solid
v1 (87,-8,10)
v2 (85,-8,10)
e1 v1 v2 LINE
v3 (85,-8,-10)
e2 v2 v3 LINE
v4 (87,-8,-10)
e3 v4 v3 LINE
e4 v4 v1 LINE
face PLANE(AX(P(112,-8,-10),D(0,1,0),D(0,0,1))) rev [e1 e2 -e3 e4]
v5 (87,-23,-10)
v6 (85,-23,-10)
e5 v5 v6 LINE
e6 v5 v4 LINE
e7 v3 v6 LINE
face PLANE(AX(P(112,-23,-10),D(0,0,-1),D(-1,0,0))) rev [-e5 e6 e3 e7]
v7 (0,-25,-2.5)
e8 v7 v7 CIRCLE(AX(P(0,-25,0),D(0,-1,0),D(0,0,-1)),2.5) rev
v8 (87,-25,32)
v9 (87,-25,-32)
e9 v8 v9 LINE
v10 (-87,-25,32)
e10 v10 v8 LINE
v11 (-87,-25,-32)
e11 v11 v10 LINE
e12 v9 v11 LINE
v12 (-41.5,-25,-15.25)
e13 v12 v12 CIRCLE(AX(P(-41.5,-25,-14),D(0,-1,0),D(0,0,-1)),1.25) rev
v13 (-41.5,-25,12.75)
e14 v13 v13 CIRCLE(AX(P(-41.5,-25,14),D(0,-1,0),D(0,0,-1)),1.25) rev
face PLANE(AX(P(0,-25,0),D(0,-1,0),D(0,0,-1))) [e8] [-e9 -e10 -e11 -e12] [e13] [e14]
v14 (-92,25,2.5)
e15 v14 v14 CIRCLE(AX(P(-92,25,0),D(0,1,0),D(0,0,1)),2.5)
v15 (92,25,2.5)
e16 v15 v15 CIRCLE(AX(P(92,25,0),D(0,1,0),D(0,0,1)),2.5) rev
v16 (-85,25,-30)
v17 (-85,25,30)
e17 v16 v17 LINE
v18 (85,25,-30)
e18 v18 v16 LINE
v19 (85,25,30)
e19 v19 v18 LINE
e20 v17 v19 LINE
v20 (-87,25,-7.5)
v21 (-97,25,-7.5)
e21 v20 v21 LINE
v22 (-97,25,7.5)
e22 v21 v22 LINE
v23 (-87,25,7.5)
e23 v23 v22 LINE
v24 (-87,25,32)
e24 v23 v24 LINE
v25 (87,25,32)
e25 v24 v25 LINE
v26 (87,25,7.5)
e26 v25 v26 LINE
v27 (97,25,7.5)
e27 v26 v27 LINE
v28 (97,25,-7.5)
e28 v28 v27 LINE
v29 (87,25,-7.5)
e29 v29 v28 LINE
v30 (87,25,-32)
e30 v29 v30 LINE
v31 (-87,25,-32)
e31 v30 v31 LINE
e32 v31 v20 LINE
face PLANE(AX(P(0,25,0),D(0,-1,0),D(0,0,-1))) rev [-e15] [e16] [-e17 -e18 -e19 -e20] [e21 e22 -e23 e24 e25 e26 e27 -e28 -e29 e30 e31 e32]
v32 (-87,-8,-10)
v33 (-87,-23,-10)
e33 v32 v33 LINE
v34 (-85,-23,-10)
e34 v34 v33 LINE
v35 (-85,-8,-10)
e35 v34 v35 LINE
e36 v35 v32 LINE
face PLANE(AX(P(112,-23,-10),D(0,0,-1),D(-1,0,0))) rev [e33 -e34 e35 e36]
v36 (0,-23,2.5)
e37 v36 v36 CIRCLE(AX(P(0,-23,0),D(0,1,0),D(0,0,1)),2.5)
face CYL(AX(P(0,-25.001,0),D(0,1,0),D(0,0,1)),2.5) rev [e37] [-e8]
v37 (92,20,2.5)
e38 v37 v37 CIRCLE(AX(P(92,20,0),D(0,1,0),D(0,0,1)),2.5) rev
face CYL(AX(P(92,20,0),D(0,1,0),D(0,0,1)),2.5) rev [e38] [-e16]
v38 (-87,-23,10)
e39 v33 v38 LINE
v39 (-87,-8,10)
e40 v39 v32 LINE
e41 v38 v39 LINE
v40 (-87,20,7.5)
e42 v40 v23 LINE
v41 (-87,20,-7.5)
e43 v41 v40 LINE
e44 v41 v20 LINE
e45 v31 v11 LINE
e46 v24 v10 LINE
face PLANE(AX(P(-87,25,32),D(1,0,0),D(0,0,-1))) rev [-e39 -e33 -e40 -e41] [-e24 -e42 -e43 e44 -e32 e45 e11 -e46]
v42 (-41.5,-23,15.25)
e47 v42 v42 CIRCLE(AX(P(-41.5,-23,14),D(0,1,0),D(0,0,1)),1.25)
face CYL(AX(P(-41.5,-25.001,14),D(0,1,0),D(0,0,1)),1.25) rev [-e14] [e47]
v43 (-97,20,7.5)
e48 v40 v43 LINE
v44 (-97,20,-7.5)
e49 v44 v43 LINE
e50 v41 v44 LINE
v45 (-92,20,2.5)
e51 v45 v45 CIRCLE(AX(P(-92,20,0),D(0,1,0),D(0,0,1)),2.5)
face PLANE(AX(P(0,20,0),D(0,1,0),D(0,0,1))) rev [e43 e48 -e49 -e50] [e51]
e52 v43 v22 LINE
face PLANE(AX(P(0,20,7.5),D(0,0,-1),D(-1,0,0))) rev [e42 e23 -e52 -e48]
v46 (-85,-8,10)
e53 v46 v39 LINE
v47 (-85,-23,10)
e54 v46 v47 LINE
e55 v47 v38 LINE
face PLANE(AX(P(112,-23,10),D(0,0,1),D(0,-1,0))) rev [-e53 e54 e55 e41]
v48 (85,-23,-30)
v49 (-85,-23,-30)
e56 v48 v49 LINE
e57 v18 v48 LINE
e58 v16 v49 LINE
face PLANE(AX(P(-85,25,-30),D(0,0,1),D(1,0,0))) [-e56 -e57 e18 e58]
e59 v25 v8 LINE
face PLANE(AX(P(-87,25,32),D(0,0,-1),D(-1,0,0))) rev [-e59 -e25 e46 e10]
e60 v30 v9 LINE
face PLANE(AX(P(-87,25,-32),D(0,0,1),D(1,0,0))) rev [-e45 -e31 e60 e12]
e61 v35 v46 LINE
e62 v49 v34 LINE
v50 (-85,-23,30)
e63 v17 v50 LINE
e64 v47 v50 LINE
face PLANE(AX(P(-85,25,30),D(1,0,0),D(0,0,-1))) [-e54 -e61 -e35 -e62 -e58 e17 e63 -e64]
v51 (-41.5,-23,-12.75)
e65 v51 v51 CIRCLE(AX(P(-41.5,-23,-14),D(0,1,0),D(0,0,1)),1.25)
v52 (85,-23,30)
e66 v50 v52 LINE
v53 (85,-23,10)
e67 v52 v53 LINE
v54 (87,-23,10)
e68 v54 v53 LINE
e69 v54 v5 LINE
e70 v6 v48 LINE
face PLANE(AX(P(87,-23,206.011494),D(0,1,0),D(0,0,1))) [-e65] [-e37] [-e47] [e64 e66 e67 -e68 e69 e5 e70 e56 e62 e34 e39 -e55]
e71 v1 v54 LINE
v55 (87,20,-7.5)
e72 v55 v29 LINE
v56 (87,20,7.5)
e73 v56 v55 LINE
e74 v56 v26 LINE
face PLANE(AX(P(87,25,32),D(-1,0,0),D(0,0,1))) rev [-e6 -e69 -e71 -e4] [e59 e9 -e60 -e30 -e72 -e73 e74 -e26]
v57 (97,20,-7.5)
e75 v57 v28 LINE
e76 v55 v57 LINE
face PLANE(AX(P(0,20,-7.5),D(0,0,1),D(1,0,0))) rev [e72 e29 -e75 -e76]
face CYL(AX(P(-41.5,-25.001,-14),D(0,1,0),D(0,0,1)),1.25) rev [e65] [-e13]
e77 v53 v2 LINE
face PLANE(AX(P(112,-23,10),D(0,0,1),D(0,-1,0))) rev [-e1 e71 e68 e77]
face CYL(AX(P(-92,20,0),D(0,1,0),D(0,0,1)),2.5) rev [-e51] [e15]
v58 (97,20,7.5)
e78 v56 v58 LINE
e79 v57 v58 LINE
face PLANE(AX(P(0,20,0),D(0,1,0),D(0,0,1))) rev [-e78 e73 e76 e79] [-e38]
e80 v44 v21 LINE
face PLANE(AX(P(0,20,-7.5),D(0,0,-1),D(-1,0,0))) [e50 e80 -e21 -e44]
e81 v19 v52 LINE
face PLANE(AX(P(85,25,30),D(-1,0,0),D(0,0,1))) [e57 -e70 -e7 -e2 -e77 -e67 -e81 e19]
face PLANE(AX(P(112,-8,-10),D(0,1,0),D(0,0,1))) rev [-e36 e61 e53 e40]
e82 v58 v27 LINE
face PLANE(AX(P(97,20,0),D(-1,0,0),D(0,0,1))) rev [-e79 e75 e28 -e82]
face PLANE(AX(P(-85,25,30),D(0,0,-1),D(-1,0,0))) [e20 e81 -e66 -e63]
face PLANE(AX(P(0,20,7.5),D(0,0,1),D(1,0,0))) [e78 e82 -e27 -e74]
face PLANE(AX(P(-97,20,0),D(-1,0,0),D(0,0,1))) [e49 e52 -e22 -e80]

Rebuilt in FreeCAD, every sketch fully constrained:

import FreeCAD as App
import Part
import Sketcher

V = App.Vector

doc = App.newDocument("Part")
body = doc.addObject("PartDesign::Body", "Body")

sketch1 = doc.addObject("Sketcher::SketchObject", "Sketch")
body.addObject(sketch1)
sketch1.AttachmentSupport = (doc.XZ_Plane, [""])
sketch1.MapMode = "FlatFace"
sketch1.addGeometry([
    Part.LineSegment(V(-87, -32, 0), V(-87, 32, 0)),
    Part.LineSegment(V(-87, 32, 0), V(87, 32, 0)),
    Part.LineSegment(V(87, 32, 0), V(87, -32, 0)),
    Part.LineSegment(V(87, -32, 0), V(-87, -32, 0)),
    Part.LineSegment(V(85, 30, 0), V(-85, 30, 0)),
    Part.LineSegment(V(-85, 30, 0), V(-85, -30, 0)),
    Part.LineSegment(V(-85, -30, 0), V(85, -30, 0)),
    Part.LineSegment(V(85, -30, 0), V(85, 30, 0)),
], False)
sketch1.addConstraint([
    Sketcher.Constraint("Coincident", 0, 2, 1, 1),
    Sketcher.Constraint("Coincident", 1, 2, 2, 1),
    Sketcher.Constraint("Coincident", 2, 2, 3, 1),
    Sketcher.Constraint("Coincident", 3, 2, 0, 1),
    Sketcher.Constraint("Coincident", 4, 2, 5, 1),
    Sketcher.Constraint("Coincident", 5, 2, 6, 1),
    Sketcher.Constraint("Coincident", 6, 2, 7, 1),
    Sketcher.Constraint("Coincident", 7, 2, 4, 1),
    Sketcher.Constraint("Vertical", 0),
    Sketcher.Constraint("Horizontal", 1),
    Sketcher.Constraint("Vertical", 2),
    Sketcher.Constraint("Horizontal", 3),
    Sketcher.Constraint("Horizontal", 4),
    Sketcher.Constraint("Vertical", 5),
    Sketcher.Constraint("Horizontal", 6),
    Sketcher.Constraint("Vertical", 7),
    Sketcher.Constraint("Symmetric", 0, 2, 2, 2, -1, 1),
    Sketcher.Constraint("Symmetric", 4, 2, 6, 2, -1, 1),
    Sketcher.Constraint("DistanceX", 1, 1, 1, 2, 174.0),
    Sketcher.Constraint("DistanceX", 4, 2, 4, 1, 170.0),
    Sketcher.Constraint("DistanceY", 0, 1, 0, 2, 64.0),
    Sketcher.Constraint("DistanceY", 5, 2, 5, 1, 60.0),
])
pad1 = doc.addObject("PartDesign::Pad", "Pad")
body.addObject(pad1)
pad1.Profile = sketch1
pad1.Length = 50
pad1.Midplane = True

sketch2 = doc.addObject("Sketcher::SketchObject", "Sketch001")
body.addObject(sketch2)
sketch2.AttachmentSupport = (doc.XY_Plane, [""])
sketch2.MapMode = "FlatFace"
sketch2.AttachmentOffset = App.Placement(V(0, 0, -32), App.Rotation())
sketch2.addGeometry([
    Part.LineSegment(V(87, -23, 0), V(87, -25, 0)),
    Part.LineSegment(V(87, -25, 0), V(-87, -25, 0)),
    Part.LineSegment(V(-87, -25, 0), V(-87, -23, 0)),
    Part.LineSegment(V(-87, -23, 0), V(87, -23, 0)),
], False)
sketch2.addConstraint([
    Sketcher.Constraint("Coincident", 0, 2, 1, 1),
    Sketcher.Constraint("Coincident", 1, 2, 2, 1),
    Sketcher.Constraint("Coincident", 2, 2, 3, 1),
    Sketcher.Constraint("Coincident", 3, 2, 0, 1),
    Sketcher.Constraint("Vertical", 0),
    Sketcher.Constraint("Horizontal", 1),
    Sketcher.Constraint("Vertical", 2),
    Sketcher.Constraint("Horizontal", 3),
    Sketcher.Constraint("DistanceX", 1, 2, 1, 1, 174.0),
    Sketcher.Constraint("DistanceY", 0, 2, 0, 1, 2.0),
    Sketcher.Constraint("DistanceX", -1, 1, 0, 2, 87.0),
    Sketcher.Constraint("DistanceY", 0, 2, -1, 1, 25.0),
])
pad2 = doc.addObject("PartDesign::Pad", "Pad001")
body.addObject(pad2)
pad2.Profile = sketch2
pad2.Length = 64

sketch3 = doc.addObject("Sketcher::SketchObject", "Sketch002")
body.addObject(sketch3)
sketch3.AttachmentSupport = (doc.XZ_Plane, [""])
sketch3.MapMode = "FlatFace"
sketch3.AttachmentOffset = App.Placement(V(0, 0, -25), App.Rotation())
sketch3.addGeometry([
    Part.LineSegment(V(-97, -7.5, 0), V(-97, 7.5, 0)),
    Part.LineSegment(V(-97, 7.5, 0), V(-87, 7.5, 0)),
    Part.LineSegment(V(-87, 7.5, 0), V(-87, -7.5, 0)),
    Part.LineSegment(V(-87, -7.5, 0), V(-97, -7.5, 0)),
    Part.Circle(V(-92, 0, 0), V(0, 0, 1), 2.5),
    Part.LineSegment(V(87, -7.5, 0), V(87, 7.5, 0)),
    Part.LineSegment(V(87, 7.5, 0), V(97, 7.5, 0)),
    Part.LineSegment(V(97, 7.5, 0), V(97, -7.5, 0)),
    Part.LineSegment(V(97, -7.5, 0), V(87, -7.5, 0)),
    Part.Circle(V(92, 0, 0), V(0, 0, 1), 2.5),
], False)
sketch3.addConstraint([
    Sketcher.Constraint("Coincident", 0, 2, 1, 1),
    Sketcher.Constraint("Coincident", 1, 2, 2, 1),
    Sketcher.Constraint("Coincident", 2, 2, 3, 1),
    Sketcher.Constraint("Coincident", 3, 2, 0, 1),
    Sketcher.Constraint("Coincident", 5, 2, 6, 1),
    Sketcher.Constraint("Coincident", 6, 2, 7, 1),
    Sketcher.Constraint("Coincident", 7, 2, 8, 1),
    Sketcher.Constraint("Coincident", 8, 2, 5, 1),
    Sketcher.Constraint("Vertical", 0),
    Sketcher.Constraint("Horizontal", 1),
    Sketcher.Constraint("Vertical", 2),
    Sketcher.Constraint("Horizontal", 3),
    Sketcher.Constraint("Vertical", 5),
    Sketcher.Constraint("Horizontal", 6),
    Sketcher.Constraint("Vertical", 7),
    Sketcher.Constraint("Horizontal", 8),
    Sketcher.Constraint("Equal", 4, 9),
    Sketcher.Constraint("Symmetric", 4, 3, 9, 3, -1, 1),
    Sketcher.Constraint("Symmetric", 2, 2, 5, 2, -1, 1),
    Sketcher.Constraint("Symmetric", 0, 2, 7, 2, -1, 1),
    Sketcher.Constraint("PointOnObject", 4, 3, -1),
    Sketcher.Constraint("Horizontal", 1, 2, 5, 2),
    Sketcher.Constraint("Diameter", 4, 5.0),
    Sketcher.Constraint("DistanceX", 1, 1, 1, 2, 10.0),
    Sketcher.Constraint("DistanceY", 0, 1, 0, 2, 15.0),
    Sketcher.Constraint("DistanceX", 4, 3, -1, 1, 92.0),
    Sketcher.Constraint("DistanceX", 0, 2, -1, 1, 97.0),
])
pad3 = doc.addObject("PartDesign::Pad", "Pad002")
body.addObject(pad3)
pad3.Profile = sketch3
pad3.Length = 5

sketch4 = doc.addObject("Sketcher::SketchObject", "Sketch003")
body.addObject(sketch4)
sketch4.AttachmentSupport = (doc.YZ_Plane, [""])
sketch4.MapMode = "FlatFace"
sketch4.AttachmentOffset = App.Placement(V(0, 0, -87), App.Rotation())
sketch4.addGeometry([
    Part.LineSegment(V(-8, -10, 0), V(-23, -10, 0)),
    Part.LineSegment(V(-23, -10, 0), V(-23, 10, 0)),
    Part.LineSegment(V(-23, 10, 0), V(-8, 10, 0)),
    Part.LineSegment(V(-8, 10, 0), V(-8, -10, 0)),
], False)
sketch4.addConstraint([
    Sketcher.Constraint("Coincident", 0, 2, 1, 1),
    Sketcher.Constraint("Coincident", 1, 2, 2, 1),
    Sketcher.Constraint("Coincident", 2, 2, 3, 1),
    Sketcher.Constraint("Coincident", 3, 2, 0, 1),
    Sketcher.Constraint("Horizontal", 0),
    Sketcher.Constraint("Vertical", 1),
    Sketcher.Constraint("Horizontal", 2),
    Sketcher.Constraint("Vertical", 3),
    Sketcher.Constraint("DistanceX", 0, 2, 0, 1, 15.0),
    Sketcher.Constraint("DistanceY", 1, 1, 1, 2, 20.0),
    Sketcher.Constraint("DistanceX", 0, 2, -1, 1, 23.0),
    Sketcher.Constraint("DistanceY", 0, 2, -1, 1, 10.0),
])
pocket1 = doc.addObject("PartDesign::Pocket", "Pocket")
body.addObject(pocket1)
pocket1.Profile = sketch4
pocket1.Length = 174
pocket1.Reversed = True

sketch5 = doc.addObject("Sketcher::SketchObject", "Sketch004")
body.addObject(sketch5)
sketch5.AttachmentSupport = (doc.XZ_Plane, [""])
sketch5.MapMode = "FlatFace"
sketch5.AttachmentOffset = App.Placement(V(0, 0, 23), App.Rotation())
sketch5.addGeometry(Part.Circle(V(0, 0, 0), V(0, 0, 1), 2.5), False)
sketch5.addConstraint([
    Sketcher.Constraint("Coincident", 0, 3, -1, 1),
    Sketcher.Constraint("Diameter", 0, 5.0),
])
pocket2 = doc.addObject("PartDesign::Pocket", "Pocket001")
body.addObject(pocket2)
pocket2.Profile = sketch5
pocket2.Type = "UpToFirst"
pocket2.Reversed = True

sketch6 = doc.addObject("Sketcher::SketchObject", "Sketch005")
body.addObject(sketch6)
sketch6.AttachmentSupport = (doc.XZ_Plane, [""])
sketch6.MapMode = "FlatFace"
sketch6.AttachmentOffset = App.Placement(V(0, 0, 23), App.Rotation())
sketch6.addGeometry(Part.Circle(V(-41.5, -14, 0), V(0, 0, 1), 1.2), False)
sketch6.addConstraint([
    Sketcher.Constraint("Diameter", 0, 2.5),
    Sketcher.Constraint("DistanceY", 0, 3, -1, 1, 14.0),
    Sketcher.Constraint("DistanceX", 0, 3, -1, 1, 41.5),
])
pocket3 = doc.addObject("PartDesign::Pocket", "Pocket002")
body.addObject(pocket3)
pocket3.Profile = sketch6
pocket3.Type = "UpToFirst"
pocket3.Reversed = True

sketch7 = doc.addObject("Sketcher::SketchObject", "Sketch006")
body.addObject(sketch7)
sketch7.AttachmentSupport = (doc.XZ_Plane, [""])
sketch7.MapMode = "FlatFace"
sketch7.AttachmentOffset = App.Placement(V(0, 0, 23), App.Rotation())
sketch7.addGeometry(Part.Circle(V(-41.5, 14, 0), V(0, 0, 1), 1.2), False)
sketch7.addConstraint([
    Sketcher.Constraint("Diameter", 0, 2.5),
    Sketcher.Constraint("DistanceY", -1, 1, 0, 3, 14.0),
    Sketcher.Constraint("DistanceX", 0, 3, -1, 1, 41.5),
])
pocket4 = doc.addObject("PartDesign::Pocket", "Pocket003")
body.addObject(pocket4)
pocket4.Profile = sketch7
pocket4.Type = "UpToFirst"
pocket4.Reversed = True

doc.recompute()
